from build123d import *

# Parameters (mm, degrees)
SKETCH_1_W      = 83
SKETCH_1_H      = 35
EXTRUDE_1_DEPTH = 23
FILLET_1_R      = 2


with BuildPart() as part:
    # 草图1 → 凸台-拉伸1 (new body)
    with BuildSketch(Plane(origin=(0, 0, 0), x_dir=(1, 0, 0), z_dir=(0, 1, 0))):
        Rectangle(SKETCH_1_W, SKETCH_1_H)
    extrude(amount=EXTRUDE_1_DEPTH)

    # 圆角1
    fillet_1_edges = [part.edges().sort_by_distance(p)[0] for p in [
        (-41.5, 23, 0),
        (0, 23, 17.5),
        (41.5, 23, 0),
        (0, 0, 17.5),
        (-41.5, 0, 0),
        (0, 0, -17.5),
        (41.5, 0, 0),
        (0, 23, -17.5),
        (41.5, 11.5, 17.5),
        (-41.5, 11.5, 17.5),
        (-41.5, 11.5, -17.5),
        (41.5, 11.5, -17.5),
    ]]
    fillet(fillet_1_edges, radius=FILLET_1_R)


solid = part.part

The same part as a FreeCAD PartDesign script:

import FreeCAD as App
import Part
import Sketcher

V = App.Vector


def add_polygon(sketch, points):
    """Adds a closed chain of lines whose ends are joined by coincident constraints."""
    first, n = sketch.GeometryCount, len(points)
    for a, b in zip(points, points[1:] + points[:1]):
        sketch.addGeometry(Part.LineSegment(App.Vector(*a, 0), App.Vector(*b, 0)), False)
    for i in range(n):
        sketch.addConstraint(Sketcher.Constraint("Coincident", first + i, 2, first + (i + 1) % n, 1))

doc = App.newDocument("Part")
params = doc.addObject("Spreadsheet::Sheet", "Params")
for row, (alias, value) in enumerate([
    ("sketch1_width", "83 mm"),
    ("sketch1_height", "35 mm"),
    ("pad1_length", "23 mm"),
    ("fillet_radius", "2 mm"),
], start=1):
    params.set(f"A{row}", alias)
    params.set(f"B{row}", "=" + value)
    params.setAlias(f"B{row}", alias)

body = doc.addObject("PartDesign::Body", "Body")

sketch1 = doc.addObject("Sketcher::SketchObject", "Sketch")
body.addObject(sketch1)
sketch1.AttachmentSupport = (doc.XZ_Plane, [""])
sketch1.MapMode = "FlatFace"
add_polygon(sketch1, [(-42, -18), (-42, 18), (42, 18), (42, -18)])
sketch1.addConstraint([
    Sketcher.Constraint("Vertical", 0),
    Sketcher.Constraint("Horizontal", 1),
    Sketcher.Constraint("Vertical", 2),
    Sketcher.Constraint("Horizontal", 3),
    Sketcher.Constraint("Symmetric", 0, 2, 2, 2, -1, 1),
    Sketcher.Constraint("DistanceX", 1, 1, 1, 2, 83.0),
    Sketcher.Constraint("DistanceY", 0, 1, 0, 2, 35.0),
])
sketch1.setExpression("Constraints[9]", "Params.sketch1_width")
sketch1.setExpression("Constraints[10]", "Params.sketch1_height")
pad1 = doc.addObject("PartDesign::Pad", "Pad")
body.addObject(pad1)
pad1.Profile = sketch1
pad1.setExpression("Length", "Params.pad1_length")
pad1.Reversed = True
doc.recompute()

fillet = doc.addObject("PartDesign::Fillet", "Fillet")
body.addObject(fillet)
fillet.Base = (pad1, ["Edge1"])
fillet.UseAllEdges = True
fillet.setExpression("Radius", "Params.fillet_radius")

doc.recompute()
